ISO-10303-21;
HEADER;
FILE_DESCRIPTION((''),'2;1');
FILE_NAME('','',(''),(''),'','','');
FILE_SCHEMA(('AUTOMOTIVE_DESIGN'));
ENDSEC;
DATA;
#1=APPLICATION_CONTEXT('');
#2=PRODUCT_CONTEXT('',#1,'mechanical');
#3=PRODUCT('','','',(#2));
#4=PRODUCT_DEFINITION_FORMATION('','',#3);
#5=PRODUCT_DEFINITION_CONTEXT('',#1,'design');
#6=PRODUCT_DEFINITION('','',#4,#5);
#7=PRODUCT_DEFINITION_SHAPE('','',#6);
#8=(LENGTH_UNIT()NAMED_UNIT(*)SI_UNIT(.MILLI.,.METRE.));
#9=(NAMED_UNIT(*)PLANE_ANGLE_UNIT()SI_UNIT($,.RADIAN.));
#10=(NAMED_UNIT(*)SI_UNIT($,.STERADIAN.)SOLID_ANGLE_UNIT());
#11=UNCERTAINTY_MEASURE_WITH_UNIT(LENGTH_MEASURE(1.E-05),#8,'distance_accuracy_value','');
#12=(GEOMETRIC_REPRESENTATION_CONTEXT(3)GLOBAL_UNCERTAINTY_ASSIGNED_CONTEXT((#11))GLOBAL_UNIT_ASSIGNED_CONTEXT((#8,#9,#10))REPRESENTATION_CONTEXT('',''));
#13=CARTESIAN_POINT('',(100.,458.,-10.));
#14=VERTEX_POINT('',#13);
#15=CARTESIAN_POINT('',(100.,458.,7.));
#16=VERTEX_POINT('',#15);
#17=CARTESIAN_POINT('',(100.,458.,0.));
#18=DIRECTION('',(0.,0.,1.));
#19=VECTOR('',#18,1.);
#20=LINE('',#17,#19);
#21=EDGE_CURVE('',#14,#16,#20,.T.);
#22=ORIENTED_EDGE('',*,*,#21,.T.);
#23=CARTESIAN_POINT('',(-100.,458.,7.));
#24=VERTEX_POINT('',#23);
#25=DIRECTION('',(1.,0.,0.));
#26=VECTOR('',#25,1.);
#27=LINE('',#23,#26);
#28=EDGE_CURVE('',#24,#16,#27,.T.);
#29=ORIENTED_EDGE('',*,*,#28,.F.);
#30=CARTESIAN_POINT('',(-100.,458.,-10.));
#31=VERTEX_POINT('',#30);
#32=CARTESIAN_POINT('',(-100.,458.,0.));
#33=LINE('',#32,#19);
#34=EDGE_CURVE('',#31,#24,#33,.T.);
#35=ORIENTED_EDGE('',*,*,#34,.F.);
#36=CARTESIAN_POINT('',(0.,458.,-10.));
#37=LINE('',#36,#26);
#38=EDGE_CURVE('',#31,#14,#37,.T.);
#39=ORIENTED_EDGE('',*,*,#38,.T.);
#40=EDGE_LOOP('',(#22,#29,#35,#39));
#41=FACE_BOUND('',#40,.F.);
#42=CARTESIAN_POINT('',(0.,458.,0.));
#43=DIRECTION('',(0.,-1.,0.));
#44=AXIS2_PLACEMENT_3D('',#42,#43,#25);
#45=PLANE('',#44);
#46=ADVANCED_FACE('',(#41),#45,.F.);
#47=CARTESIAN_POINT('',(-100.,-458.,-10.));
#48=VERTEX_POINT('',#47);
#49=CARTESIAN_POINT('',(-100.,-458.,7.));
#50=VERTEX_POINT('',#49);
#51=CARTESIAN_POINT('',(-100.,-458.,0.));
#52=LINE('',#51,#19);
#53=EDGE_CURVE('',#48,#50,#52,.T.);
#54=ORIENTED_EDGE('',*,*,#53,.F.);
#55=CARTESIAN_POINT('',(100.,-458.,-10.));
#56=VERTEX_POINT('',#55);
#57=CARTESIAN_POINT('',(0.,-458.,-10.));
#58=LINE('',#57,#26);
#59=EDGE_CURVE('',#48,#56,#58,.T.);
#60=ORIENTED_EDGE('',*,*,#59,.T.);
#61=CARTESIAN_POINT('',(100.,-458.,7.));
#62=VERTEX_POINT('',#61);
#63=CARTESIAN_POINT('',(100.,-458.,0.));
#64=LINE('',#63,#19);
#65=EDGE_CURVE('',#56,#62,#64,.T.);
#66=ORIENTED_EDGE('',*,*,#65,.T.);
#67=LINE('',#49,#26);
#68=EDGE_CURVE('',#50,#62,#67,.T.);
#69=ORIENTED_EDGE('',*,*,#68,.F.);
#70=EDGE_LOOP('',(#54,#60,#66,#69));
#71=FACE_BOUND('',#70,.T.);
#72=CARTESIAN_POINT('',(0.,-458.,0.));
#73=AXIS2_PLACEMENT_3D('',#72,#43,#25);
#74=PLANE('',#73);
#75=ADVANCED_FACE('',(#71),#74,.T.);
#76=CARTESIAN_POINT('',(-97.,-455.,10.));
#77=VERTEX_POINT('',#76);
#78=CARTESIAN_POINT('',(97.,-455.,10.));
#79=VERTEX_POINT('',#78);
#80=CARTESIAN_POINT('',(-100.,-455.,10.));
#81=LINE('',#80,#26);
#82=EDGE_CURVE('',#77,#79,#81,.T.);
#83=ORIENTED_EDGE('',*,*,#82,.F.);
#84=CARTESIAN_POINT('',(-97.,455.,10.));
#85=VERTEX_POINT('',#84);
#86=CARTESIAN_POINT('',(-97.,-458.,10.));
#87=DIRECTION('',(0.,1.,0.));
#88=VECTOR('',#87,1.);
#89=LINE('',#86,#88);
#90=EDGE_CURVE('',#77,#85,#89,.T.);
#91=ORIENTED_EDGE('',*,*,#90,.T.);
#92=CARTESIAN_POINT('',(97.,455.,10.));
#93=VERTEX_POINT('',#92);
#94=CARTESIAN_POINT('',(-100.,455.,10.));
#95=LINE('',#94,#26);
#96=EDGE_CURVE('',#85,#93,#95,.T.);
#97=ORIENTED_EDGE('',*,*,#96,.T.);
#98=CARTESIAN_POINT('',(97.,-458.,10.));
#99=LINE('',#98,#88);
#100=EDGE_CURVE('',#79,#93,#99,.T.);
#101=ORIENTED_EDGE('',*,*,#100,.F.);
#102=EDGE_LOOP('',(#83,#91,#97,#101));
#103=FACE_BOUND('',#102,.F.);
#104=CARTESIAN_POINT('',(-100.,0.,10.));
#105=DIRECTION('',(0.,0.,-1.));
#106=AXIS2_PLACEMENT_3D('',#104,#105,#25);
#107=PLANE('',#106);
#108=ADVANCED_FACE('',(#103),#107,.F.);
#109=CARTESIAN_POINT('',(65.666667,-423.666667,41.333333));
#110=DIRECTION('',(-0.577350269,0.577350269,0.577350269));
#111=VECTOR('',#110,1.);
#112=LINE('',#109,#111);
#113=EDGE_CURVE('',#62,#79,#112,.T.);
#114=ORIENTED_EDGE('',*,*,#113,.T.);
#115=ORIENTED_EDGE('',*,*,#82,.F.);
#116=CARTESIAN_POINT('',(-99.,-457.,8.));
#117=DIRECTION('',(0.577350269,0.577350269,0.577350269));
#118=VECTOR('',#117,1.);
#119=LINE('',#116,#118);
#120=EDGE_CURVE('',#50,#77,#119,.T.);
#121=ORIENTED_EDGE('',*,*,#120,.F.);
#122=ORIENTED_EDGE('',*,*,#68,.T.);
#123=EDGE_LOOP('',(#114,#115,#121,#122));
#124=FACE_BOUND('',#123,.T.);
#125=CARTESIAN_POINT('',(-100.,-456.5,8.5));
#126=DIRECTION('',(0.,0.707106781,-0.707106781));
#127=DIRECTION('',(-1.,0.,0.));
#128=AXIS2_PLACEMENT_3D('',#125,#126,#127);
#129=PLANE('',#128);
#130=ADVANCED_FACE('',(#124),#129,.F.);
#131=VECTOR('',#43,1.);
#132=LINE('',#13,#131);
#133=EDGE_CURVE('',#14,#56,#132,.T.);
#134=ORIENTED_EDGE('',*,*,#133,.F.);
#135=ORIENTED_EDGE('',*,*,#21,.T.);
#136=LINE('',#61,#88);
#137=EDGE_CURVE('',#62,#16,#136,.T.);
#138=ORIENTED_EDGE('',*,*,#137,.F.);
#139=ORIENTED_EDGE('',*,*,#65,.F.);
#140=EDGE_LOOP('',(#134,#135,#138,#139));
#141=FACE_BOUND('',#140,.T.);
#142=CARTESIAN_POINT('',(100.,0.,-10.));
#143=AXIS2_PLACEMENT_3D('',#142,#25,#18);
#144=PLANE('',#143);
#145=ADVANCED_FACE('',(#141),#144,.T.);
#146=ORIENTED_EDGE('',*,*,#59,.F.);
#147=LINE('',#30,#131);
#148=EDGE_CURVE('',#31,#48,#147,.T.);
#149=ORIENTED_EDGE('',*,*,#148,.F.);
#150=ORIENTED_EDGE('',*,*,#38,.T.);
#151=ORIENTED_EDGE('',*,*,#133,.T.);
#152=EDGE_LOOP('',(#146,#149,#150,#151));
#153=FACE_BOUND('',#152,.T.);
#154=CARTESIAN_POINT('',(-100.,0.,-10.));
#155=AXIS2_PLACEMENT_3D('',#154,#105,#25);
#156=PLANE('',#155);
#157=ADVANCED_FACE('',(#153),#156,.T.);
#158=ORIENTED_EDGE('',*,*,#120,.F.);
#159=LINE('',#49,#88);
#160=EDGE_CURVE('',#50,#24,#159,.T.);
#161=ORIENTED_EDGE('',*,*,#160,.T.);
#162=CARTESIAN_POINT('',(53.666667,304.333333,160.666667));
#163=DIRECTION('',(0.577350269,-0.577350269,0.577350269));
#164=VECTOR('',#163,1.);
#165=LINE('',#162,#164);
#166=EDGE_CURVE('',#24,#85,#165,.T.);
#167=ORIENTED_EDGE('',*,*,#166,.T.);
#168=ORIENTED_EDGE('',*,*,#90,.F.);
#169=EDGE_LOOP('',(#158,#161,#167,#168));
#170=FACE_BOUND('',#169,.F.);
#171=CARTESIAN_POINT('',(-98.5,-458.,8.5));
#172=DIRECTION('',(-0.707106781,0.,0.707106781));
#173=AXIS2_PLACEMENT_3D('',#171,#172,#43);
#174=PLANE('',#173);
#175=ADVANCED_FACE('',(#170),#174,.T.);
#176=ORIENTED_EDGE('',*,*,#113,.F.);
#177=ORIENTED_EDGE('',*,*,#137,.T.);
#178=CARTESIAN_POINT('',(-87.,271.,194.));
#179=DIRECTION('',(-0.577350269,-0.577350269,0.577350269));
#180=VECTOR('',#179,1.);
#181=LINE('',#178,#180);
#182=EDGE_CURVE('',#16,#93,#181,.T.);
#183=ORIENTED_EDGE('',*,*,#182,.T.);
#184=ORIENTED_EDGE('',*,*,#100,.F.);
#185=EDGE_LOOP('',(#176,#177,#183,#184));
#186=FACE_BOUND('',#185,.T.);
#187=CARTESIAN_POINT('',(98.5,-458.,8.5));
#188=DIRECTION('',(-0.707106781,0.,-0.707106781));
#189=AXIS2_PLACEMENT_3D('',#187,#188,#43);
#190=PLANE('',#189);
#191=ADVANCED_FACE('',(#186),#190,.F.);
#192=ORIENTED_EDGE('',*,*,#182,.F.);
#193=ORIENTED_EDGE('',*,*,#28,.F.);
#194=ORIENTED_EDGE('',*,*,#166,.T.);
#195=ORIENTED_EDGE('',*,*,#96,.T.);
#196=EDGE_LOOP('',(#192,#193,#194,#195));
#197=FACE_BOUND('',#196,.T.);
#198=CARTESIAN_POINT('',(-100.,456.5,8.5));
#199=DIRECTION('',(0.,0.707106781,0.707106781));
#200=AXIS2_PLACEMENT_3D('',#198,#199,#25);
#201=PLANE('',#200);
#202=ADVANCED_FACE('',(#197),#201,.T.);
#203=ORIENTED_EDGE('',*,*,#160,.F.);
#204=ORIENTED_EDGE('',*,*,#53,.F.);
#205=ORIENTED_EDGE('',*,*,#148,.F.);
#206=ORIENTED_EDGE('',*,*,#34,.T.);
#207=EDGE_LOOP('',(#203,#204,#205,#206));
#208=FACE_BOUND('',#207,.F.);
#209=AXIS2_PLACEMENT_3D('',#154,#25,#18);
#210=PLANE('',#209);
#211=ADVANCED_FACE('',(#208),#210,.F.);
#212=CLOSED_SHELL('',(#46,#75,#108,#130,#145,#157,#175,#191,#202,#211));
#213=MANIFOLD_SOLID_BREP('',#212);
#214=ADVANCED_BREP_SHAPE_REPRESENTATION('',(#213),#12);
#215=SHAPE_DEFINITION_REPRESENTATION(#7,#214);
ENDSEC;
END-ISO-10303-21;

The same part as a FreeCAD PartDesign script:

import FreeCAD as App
import Part
import Sketcher
Q = App.Units.Quantity


def edges_at(feature, points):
    """Names of the edges that pass closest to the given points."""
    edges = feature.Shape.Edges
    near = lambda p: min(range(len(edges)), key=lambda i: edges[i].distToShape(Part.Vertex(*p))[0])
    return sorted({f"Edge{near(p) + 1}" for p in points})


def add_polygon(sketch, points):
    """Adds a closed chain of lines whose ends are joined by coincident constraints."""
    first, n = sketch.GeometryCount, len(points)
    for a, b in zip(points, points[1:] + points[:1]):
        sketch.addGeometry(Part.LineSegment(App.Vector(*a, 0), App.Vector(*b, 0)), False)
    for i in range(n):
        sketch.addConstraint(Sketcher.Constraint("Coincident", first + i, 2, first + (i + 1) % n, 1))

doc = App.newDocument("Part")
body = doc.addObject("PartDesign::Body", "Body")

# Sketch on XZ plane
sketch1 = body.newObject("Sketcher::SketchObject", "Sketch")
sketch1.AttachmentSupport = (doc.getObject("XZ_Plane"), [""])
sketch1.MapMode = "FlatFace"
add_polygon(sketch1, [(-100, 10), (-100, -10), (100, -10), (100, 10)])  # lines 0-3
sketch1.addConstraint([
    Sketcher.Constraint("Vertical", 0),
    Sketcher.Constraint("Horizontal", 1),
    Sketcher.Constraint("Vertical", 2),
    Sketcher.Constraint("Horizontal", 3),
    Sketcher.Constraint("Symmetric", 0, 2, 2, 2, -1, 1),
    Sketcher.Constraint("DistanceX", 1, 1, 1, 2, Q("200 mm")),
    Sketcher.Constraint("DistanceY", 0, 2, 0, 1, Q("20 mm")),
])
pad1 = body.newObject("PartDesign::Pad", "Pad")
pad1.Profile = sketch1
pad1.Length = 916
pad1.Midplane = True
doc.recompute()

chamfer = body.newObject("PartDesign::Chamfer", "Chamfer")
chamfer.Base = (pad1, edges_at(pad1, [
    (100, 0, 10),
    (-100, 0, 10),
    (0, -458, 10),
    (0, 458, 10),
]))
chamfer.Size = 3

doc.recompute()
